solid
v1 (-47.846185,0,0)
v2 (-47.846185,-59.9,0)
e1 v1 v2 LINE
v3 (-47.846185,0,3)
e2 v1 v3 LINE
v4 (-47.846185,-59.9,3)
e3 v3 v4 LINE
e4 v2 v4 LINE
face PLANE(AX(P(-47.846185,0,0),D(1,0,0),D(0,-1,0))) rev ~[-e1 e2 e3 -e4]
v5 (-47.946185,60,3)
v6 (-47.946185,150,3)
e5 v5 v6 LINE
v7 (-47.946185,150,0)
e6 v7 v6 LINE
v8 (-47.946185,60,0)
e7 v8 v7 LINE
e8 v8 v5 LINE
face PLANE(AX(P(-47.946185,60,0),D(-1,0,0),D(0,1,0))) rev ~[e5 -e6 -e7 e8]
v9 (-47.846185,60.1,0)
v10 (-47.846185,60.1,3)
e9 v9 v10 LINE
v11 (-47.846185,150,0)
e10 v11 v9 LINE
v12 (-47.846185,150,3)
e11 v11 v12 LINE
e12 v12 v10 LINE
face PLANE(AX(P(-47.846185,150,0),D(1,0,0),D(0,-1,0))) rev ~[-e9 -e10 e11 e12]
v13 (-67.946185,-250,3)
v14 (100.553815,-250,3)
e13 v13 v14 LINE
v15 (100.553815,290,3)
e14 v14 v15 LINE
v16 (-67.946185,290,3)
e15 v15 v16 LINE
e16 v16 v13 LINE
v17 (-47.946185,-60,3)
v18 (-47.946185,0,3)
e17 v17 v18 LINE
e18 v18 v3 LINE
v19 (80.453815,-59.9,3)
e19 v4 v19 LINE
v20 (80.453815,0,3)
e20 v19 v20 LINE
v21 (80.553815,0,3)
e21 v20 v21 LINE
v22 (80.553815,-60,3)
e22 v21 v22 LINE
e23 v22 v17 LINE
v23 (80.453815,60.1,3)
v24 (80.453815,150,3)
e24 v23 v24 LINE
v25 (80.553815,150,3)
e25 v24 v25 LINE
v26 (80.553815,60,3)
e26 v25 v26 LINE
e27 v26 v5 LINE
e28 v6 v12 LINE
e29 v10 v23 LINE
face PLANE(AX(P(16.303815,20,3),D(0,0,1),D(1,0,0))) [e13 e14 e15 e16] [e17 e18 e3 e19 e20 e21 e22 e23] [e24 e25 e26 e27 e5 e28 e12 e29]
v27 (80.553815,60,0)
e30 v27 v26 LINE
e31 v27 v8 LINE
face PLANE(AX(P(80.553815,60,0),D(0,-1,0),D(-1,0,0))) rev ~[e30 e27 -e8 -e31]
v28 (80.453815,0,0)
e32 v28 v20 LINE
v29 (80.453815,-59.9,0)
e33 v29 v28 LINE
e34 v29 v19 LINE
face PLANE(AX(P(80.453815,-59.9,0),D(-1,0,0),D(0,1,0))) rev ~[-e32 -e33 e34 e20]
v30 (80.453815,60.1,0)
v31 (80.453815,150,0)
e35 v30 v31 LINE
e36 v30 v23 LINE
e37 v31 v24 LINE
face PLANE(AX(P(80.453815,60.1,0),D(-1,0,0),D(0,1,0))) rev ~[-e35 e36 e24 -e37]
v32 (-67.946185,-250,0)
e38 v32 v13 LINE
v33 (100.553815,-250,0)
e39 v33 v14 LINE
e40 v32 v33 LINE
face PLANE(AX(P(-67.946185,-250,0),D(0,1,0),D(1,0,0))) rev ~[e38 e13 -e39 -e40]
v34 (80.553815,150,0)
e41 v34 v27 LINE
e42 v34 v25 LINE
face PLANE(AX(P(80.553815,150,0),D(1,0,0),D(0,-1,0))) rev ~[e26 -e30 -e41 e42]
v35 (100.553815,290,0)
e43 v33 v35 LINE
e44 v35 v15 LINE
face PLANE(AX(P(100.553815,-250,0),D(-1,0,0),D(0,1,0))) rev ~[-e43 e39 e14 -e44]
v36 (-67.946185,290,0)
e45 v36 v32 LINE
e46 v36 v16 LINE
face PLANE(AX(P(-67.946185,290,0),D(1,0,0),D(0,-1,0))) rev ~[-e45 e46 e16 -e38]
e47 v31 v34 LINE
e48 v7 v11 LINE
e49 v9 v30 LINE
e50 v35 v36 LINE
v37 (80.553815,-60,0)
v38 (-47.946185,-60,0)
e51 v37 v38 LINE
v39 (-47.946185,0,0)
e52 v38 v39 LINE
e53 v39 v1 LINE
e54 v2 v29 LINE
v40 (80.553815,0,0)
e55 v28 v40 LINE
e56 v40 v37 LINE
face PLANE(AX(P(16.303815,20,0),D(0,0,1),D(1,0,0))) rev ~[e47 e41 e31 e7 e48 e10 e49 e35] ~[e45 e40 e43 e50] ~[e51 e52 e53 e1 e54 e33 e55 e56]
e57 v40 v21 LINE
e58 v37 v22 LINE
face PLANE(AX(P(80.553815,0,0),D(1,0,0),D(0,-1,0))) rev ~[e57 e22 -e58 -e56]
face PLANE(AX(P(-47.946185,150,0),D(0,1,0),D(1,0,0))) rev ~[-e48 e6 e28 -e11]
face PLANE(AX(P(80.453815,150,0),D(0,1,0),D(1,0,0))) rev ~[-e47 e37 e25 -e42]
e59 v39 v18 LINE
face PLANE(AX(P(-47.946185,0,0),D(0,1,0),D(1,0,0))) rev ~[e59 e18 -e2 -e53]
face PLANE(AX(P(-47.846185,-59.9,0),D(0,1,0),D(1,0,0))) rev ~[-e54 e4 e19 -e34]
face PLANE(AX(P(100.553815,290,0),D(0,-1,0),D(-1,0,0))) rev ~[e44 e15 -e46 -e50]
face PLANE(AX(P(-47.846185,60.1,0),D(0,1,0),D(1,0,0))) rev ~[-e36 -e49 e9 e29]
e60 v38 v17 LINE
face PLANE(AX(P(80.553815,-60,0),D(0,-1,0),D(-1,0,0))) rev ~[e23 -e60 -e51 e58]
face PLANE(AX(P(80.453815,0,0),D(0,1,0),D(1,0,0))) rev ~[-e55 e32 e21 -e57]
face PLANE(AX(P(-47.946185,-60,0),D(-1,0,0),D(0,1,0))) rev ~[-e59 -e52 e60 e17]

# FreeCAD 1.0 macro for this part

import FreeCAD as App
import Part
import Sketcher

V = App.Vector

doc = App.newDocument("Part")
body = doc.addObject("PartDesign::Body", "Body")

# Sketch on XY plane
sketch1 = body.newObject("Sketcher::SketchObject", "Sketch")
sketch1.AttachmentSupport = (doc.getObject("XY_Plane"), [""])
sketch1.MapMode = "FlatFace"
sketch1.addGeometry(Part.LineSegment(V(-67.946185, -250, 0), V(100.553815, -250, 0)), False)
sketch1.addGeometry(Part.LineSegment(V(100.553815, -250, 0), V(100.553815, 290, 0)), False)
sketch1.addGeometry(Part.LineSegment(V(100.553815, 290, 0), V(-67.946185, 290, 0)), False)
sketch1.addGeometry(Part.LineSegment(V(-67.946185, 290, 0), V(-67.946185, -250, 0)), False)
sketch1.addGeometry(Part.LineSegment(V(-47.946185, -60, 0), V(-47.946185, 0, 0)), False)
sketch1.addGeometry(Part.LineSegment(V(-47.946185, 0, 0), V(-47.846185, 0, 0)), False)
sketch1.addGeometry(Part.LineSegment(V(-47.846185, 0, 0), V(-47.846185, -59.9, 0)), False)
sketch1.addGeometry(Part.LineSegment(V(-47.846185, -59.9, 0), V(80.453815, -59.9, 0)), False)
sketch1.addGeometry(Part.LineSegment(V(80.453815, -59.9, 0), V(80.453815, 0, 0)), False)
sketch1.addGeometry(Part.LineSegment(V(80.453815, 0, 0), V(80.553815, 0, 0)), False)
sketch1.addGeometry(Part.LineSegment(V(80.553815, 0, 0), V(80.553815, -60, 0)), False)
sketch1.addGeometry(Part.LineSegment(V(80.553815, -60, 0), V(-47.946185, -60, 0)), False)
sketch1.addGeometry(Part.LineSegment(V(-47.946185, 60, 0), V(-47.946185, 150, 0)), False)
sketch1.addGeometry(Part.LineSegment(V(-47.946185, 150, 0), V(-47.846185, 150, 0)), False)
sketch1.addGeometry(Part.LineSegment(V(-47.846185, 150, 0), V(-47.846185, 60.1, 0)), False)
sketch1.addGeometry(Part.LineSegment(V(-47.846185, 60.1, 0), V(80.453815, 60.1, 0)), False)
sketch1.addGeometry(Part.LineSegment(V(80.453815, 60.1, 0), V(80.453815, 150, 0)), False)
sketch1.addGeometry(Part.LineSegment(V(80.453815, 150, 0), V(80.553815, 150, 0)), False)
sketch1.addGeometry(Part.LineSegment(V(80.553815, 150, 0), V(80.553815, 60, 0)), False)
sketch1.addGeometry(Part.LineSegment(V(80.553815, 60, 0), V(-47.946185, 60, 0)), False)
sketch1.addConstraint(Sketcher.Constraint("Coincident", 0, 2, 1, 1))
sketch1.addConstraint(Sketcher.Constraint("Coincident", 1, 2, 2, 1))
sketch1.addConstraint(Sketcher.Constraint("Coincident", 2, 2, 3, 1))
sketch1.addConstraint(Sketcher.Constraint("Coincident", 3, 2, 0, 1))
sketch1.addConstraint(Sketcher.Constraint("Coincident", 4, 2, 5, 1))
sketch1.addConstraint(Sketcher.Constraint("Coincident", 5, 2, 6, 1))
sketch1.addConstraint(Sketcher.Constraint("Coincident", 6, 2, 7, 1))
sketch1.addConstraint(Sketcher.Constraint("Coincident", 7, 2, 8, 1))
sketch1.addConstraint(Sketcher.Constraint("Coincident", 8, 2, 9, 1))
sketch1.addConstraint(Sketcher.Constraint("Coincident", 9, 2, 10, 1))
sketch1.addConstraint(Sketcher.Constraint("Coincident", 10, 2, 11, 1))
sketch1.addConstraint(Sketcher.Constraint("Coincident", 11, 2, 4, 1))
sketch1.addConstraint(Sketcher.Constraint("Coincident", 12, 2, 13, 1))
sketch1.addConstraint(Sketcher.Constraint("Coincident", 13, 2, 14, 1))
sketch1.addConstraint(Sketcher.Constraint("Coincident", 14, 2, 15, 1))
sketch1.addConstraint(Sketcher.Constraint("Coincident", 15, 2, 16, 1))
sketch1.addConstraint(Sketcher.Constraint("Coincident", 16, 2, 17, 1))
sketch1.addConstraint(Sketcher.Constraint("Coincident", 17, 2, 18, 1))
sketch1.addConstraint(Sketcher.Constraint("Coincident", 18, 2, 19, 1))
sketch1.addConstraint(Sketcher.Constraint("Coincident", 19, 2, 12, 1))
sketch1.addConstraint(Sketcher.Constraint("Horizontal", 0))
sketch1.addConstraint(Sketcher.Constraint("Vertical", 1))
sketch1.addConstraint(Sketcher.Constraint("Horizontal", 2))
sketch1.addConstraint(Sketcher.Constraint("Vertical", 3))
sketch1.addConstraint(Sketcher.Constraint("Vertical", 4))
sketch1.addConstraint(Sketcher.Constraint("Horizontal", 5))
sketch1.addConstraint(Sketcher.Constraint("Vertical", 6))
sketch1.addConstraint(Sketcher.Constraint("Horizontal", 7))
sketch1.addConstraint(Sketcher.Constraint("Vertical", 8))
sketch1.addConstraint(Sketcher.Constraint("Horizontal", 9))
sketch1.addConstraint(Sketcher.Constraint("Vertical", 10))
sketch1.addConstraint(Sketcher.Constraint("Horizontal", 11))
sketch1.addConstraint(Sketcher.Constraint("Vertical", 12))
sketch1.addConstraint(Sketcher.Constraint("Horizontal", 13))
sketch1.addConstraint(Sketcher.Constraint("Vertical", 14))
sketch1.addConstraint(Sketcher.Constraint("Horizontal", 15))
sketch1.addConstraint(Sketcher.Constraint("Vertical", 16))
sketch1.addConstraint(Sketcher.Constraint("Horizontal", 17))
sketch1.addConstraint(Sketcher.Constraint("Vertical", 18))
sketch1.addConstraint(Sketcher.Constraint("Horizontal", 19))
sketch1.addConstraint(Sketcher.Constraint("Symmetric", 10, 2, 18, 2, -1))
sketch1.addConstraint(Sketcher.Constraint("PointOnObject", 4, 2, -1))
sketch1.addConstraint(Sketcher.Constraint("PointOnObject", 8, 2, -1))
sketch1.addConstraint(Sketcher.Constraint("Horizontal", 13, 2, 16, 2))
sketch1.addConstraint(Sketcher.Constraint("Vertical", 11, 2, 12, 2))
sketch1.addConstraint(Sketcher.Constraint("Vertical", 6, 2, 13, 2))
sketch1.addConstraint(Sketcher.Constraint("Vertical", 8, 2, 15, 2))
sketch1.addConstraint(Sketcher.Constraint("Equal", 5, 9))
sketch1.addConstraint(Sketcher.Constraint("DistanceY", 1, 1, 1, 2, 540.0))
sketch1.addConstraint(Sketcher.Constraint("DistanceY", 4, 1, 4, 2, 60.0))
sketch1.addConstraint(Sketcher.Constraint("DistanceY", 12, 1, 12, 2, 90.0))
sketch1.addConstraint(Sketcher.Constraint("DistanceX", 0, 1, 0, 2, 168.5))
sketch1.addConstraint(Sketcher.Constraint("DistanceX", 5, 1, 5, 2, 0.1))
sketch1.addConstraint(Sketcher.Constraint("DistanceX", 7, 1, 7, 2, 128.3))
sketch1.addConstraint(Sketcher.Constraint("DistanceY", 6, 2, 6, 1, 59.9))
sketch1.addConstraint(Sketcher.Constraint("DistanceY", 14, 2, 14, 1, 89.9))
sketch1.addConstraint(Sketcher.Constraint("DistanceY", 0, 2, -1, 1, 250.0))
sketch1.addConstraint(Sketcher.Constraint("DistanceX", 3, 2, 4, 2, 20.0))
sketch1.addConstraint(Sketcher.Constraint("DistanceX", -1, 1, 0, 2, 100.553815))
pad1 = body.newObject("PartDesign::Pad", "Pad")
pad1.Profile = sketch1
pad1.Length = 3

doc.recompute()
